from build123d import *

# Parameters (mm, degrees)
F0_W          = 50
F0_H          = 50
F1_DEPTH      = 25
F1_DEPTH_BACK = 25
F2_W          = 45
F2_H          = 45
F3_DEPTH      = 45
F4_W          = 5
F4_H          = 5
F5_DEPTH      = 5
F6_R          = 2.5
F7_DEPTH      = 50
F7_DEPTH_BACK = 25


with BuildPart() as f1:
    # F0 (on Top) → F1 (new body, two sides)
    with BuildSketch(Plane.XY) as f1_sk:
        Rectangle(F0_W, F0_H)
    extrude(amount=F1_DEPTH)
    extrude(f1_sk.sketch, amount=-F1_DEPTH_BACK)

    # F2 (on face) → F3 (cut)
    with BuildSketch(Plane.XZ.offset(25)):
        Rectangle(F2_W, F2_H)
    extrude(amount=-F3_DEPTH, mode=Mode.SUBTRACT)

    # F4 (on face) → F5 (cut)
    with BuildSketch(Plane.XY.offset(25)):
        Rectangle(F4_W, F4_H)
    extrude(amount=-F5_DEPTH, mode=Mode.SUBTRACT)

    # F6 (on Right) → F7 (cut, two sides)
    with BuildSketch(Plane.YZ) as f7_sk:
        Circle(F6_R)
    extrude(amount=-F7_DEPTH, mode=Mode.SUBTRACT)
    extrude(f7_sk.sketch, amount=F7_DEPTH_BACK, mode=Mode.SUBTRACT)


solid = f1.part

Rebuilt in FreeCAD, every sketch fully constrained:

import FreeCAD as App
import Part
import Sketcher

V = App.Vector

doc = App.newDocument("Part")
body = doc.addObject("PartDesign::Body", "Body")

sketch1 = body.newObject("Sketcher::SketchObject", "Sketch")
sketch1.AttachmentSupport = (doc.getObject("XY_Plane"), [""])
sketch1.MapMode = "FlatFace"
sketch1.addGeometry([
    Part.LineSegment(V(-25, 25, 0), V(-25, -25, 0)),
    Part.LineSegment(V(-25, -25, 0), V(25, -25, 0)),
    Part.LineSegment(V(25, -25, 0), V(25, 25, 0)),
    Part.LineSegment(V(25, 25, 0), V(-25, 25, 0)),
], False)
sketch1.addConstraint([
    Sketcher.Constraint("Coincident", 0, 2, 1, 1),
    Sketcher.Constraint("Coincident", 1, 2, 2, 1),
    Sketcher.Constraint("Coincident", 2, 2, 3, 1),
    Sketcher.Constraint("Coincident", 3, 2, 0, 1),
    Sketcher.Constraint("Vertical", 0),
    Sketcher.Constraint("Horizontal", 1),
    Sketcher.Constraint("Vertical", 2),
    Sketcher.Constraint("Horizontal", 3),
    Sketcher.Constraint("Symmetric", 0, 2, 2, 2, -1, 1),
    Sketcher.Constraint("Equal", 3, 0),
    Sketcher.Constraint("DistanceX", 1, 1, 1, 2, 50.0),
])
pad1 = body.newObject("PartDesign::Pad", "Pad")
pad1.Profile = sketch1
pad1.Type = "TwoLengths"
pad1.Length = 25
pad1.Length2 = 25

sketch2 = body.newObject("Sketcher::SketchObject", "Sketch001")
sketch2.AttachmentSupport = (doc.getObject("XZ_Plane"), [""])
sketch2.MapMode = "FlatFace"
sketch2.AttachmentOffset = App.Placement(V(0, 0, 25), App.Rotation())
sketch2.addGeometry([
    Part.LineSegment(V(-22, 22, 0), V(-22, -22, 0)),
    Part.LineSegment(V(-22, -22, 0), V(22, -22, 0)),
    Part.LineSegment(V(22, -22, 0), V(22, 22, 0)),
    Part.LineSegment(V(22, 22, 0), V(-22, 22, 0)),
], False)
sketch2.addConstraint([
    Sketcher.Constraint("Coincident", 0, 2, 1, 1),
    Sketcher.Constraint("Coincident", 1, 2, 2, 1),
    Sketcher.Constraint("Coincident", 2, 2, 3, 1),
    Sketcher.Constraint("Coincident", 3, 2, 0, 1),
    Sketcher.Constraint("Vertical", 0),
    Sketcher.Constraint("Horizontal", 1),
    Sketcher.Constraint("Vertical", 2),
    Sketcher.Constraint("Horizontal", 3),
    Sketcher.Constraint("Symmetric", 0, 2, 2, 2, -1, 1),
    Sketcher.Constraint("Equal", 3, 0),
    Sketcher.Constraint("DistanceX", 1, 1, 1, 2, 45.0),
])
pocket1 = body.newObject("PartDesign::Pocket", "Pocket")
pocket1.Profile = sketch2
pocket1.Length = 45

sketch3 = body.newObject("Sketcher::SketchObject", "Sketch002")
sketch3.AttachmentSupport = (doc.getObject("XY_Plane"), [""])
sketch3.MapMode = "FlatFace"
sketch3.AttachmentOffset = App.Placement(V(0, 0, 25), App.Rotation())
sketch3.addGeometry([
    Part.LineSegment(V(-2, 2, 0), V(-2, -2, 0)),
    Part.LineSegment(V(-2, -2, 0), V(2, -2, 0)),
    Part.LineSegment(V(2, -2, 0), V(2, 2, 0)),
    Part.LineSegment(V(2, 2, 0), V(-2, 2, 0)),
], False)
sketch3.addConstraint([
    Sketcher.Constraint("Coincident", 0, 2, 1, 1),
    Sketcher.Constraint("Coincident", 1, 2, 2, 1),
    Sketcher.Constraint("Coincident", 2, 2, 3, 1),
    Sketcher.Constraint("Coincident", 3, 2, 0, 1),
    Sketcher.Constraint("Vertical", 0),
    Sketcher.Constraint("Horizontal", 1),
    Sketcher.Constraint("Vertical", 2),
    Sketcher.Constraint("Horizontal", 3),
    Sketcher.Constraint("Symmetric", 0, 2, 2, 2, -1, 1),
    Sketcher.Constraint("Equal", 3, 0),
    Sketcher.Constraint("DistanceX", 1, 1, 1, 2, 5.0),
])
pocket2 = body.newObject("PartDesign::Pocket", "Pocket001")
pocket2.Profile = sketch3
pocket2.Length = 5

sketch4 = body.newObject("Sketcher::SketchObject", "Sketch003")
sketch4.AttachmentSupport = (doc.getObject("YZ_Plane"), [""])
sketch4.MapMode = "FlatFace"
sketch4.addGeometry(Part.Circle(V(0, 0, 0), V(0, 0, 1), 2.5), False)
sketch4.addConstraint([
    Sketcher.Constraint("Coincident", 0, 3, -1, 1),
    Sketcher.Constraint("Diameter", 0, 5.0),
])
pocket3 = body.newObject("PartDesign::Pocket", "Pocket002")
pocket3.Profile = sketch4
pocket3.Type = "ThroughAll"
pocket3.Midplane = True

doc.recompute()
